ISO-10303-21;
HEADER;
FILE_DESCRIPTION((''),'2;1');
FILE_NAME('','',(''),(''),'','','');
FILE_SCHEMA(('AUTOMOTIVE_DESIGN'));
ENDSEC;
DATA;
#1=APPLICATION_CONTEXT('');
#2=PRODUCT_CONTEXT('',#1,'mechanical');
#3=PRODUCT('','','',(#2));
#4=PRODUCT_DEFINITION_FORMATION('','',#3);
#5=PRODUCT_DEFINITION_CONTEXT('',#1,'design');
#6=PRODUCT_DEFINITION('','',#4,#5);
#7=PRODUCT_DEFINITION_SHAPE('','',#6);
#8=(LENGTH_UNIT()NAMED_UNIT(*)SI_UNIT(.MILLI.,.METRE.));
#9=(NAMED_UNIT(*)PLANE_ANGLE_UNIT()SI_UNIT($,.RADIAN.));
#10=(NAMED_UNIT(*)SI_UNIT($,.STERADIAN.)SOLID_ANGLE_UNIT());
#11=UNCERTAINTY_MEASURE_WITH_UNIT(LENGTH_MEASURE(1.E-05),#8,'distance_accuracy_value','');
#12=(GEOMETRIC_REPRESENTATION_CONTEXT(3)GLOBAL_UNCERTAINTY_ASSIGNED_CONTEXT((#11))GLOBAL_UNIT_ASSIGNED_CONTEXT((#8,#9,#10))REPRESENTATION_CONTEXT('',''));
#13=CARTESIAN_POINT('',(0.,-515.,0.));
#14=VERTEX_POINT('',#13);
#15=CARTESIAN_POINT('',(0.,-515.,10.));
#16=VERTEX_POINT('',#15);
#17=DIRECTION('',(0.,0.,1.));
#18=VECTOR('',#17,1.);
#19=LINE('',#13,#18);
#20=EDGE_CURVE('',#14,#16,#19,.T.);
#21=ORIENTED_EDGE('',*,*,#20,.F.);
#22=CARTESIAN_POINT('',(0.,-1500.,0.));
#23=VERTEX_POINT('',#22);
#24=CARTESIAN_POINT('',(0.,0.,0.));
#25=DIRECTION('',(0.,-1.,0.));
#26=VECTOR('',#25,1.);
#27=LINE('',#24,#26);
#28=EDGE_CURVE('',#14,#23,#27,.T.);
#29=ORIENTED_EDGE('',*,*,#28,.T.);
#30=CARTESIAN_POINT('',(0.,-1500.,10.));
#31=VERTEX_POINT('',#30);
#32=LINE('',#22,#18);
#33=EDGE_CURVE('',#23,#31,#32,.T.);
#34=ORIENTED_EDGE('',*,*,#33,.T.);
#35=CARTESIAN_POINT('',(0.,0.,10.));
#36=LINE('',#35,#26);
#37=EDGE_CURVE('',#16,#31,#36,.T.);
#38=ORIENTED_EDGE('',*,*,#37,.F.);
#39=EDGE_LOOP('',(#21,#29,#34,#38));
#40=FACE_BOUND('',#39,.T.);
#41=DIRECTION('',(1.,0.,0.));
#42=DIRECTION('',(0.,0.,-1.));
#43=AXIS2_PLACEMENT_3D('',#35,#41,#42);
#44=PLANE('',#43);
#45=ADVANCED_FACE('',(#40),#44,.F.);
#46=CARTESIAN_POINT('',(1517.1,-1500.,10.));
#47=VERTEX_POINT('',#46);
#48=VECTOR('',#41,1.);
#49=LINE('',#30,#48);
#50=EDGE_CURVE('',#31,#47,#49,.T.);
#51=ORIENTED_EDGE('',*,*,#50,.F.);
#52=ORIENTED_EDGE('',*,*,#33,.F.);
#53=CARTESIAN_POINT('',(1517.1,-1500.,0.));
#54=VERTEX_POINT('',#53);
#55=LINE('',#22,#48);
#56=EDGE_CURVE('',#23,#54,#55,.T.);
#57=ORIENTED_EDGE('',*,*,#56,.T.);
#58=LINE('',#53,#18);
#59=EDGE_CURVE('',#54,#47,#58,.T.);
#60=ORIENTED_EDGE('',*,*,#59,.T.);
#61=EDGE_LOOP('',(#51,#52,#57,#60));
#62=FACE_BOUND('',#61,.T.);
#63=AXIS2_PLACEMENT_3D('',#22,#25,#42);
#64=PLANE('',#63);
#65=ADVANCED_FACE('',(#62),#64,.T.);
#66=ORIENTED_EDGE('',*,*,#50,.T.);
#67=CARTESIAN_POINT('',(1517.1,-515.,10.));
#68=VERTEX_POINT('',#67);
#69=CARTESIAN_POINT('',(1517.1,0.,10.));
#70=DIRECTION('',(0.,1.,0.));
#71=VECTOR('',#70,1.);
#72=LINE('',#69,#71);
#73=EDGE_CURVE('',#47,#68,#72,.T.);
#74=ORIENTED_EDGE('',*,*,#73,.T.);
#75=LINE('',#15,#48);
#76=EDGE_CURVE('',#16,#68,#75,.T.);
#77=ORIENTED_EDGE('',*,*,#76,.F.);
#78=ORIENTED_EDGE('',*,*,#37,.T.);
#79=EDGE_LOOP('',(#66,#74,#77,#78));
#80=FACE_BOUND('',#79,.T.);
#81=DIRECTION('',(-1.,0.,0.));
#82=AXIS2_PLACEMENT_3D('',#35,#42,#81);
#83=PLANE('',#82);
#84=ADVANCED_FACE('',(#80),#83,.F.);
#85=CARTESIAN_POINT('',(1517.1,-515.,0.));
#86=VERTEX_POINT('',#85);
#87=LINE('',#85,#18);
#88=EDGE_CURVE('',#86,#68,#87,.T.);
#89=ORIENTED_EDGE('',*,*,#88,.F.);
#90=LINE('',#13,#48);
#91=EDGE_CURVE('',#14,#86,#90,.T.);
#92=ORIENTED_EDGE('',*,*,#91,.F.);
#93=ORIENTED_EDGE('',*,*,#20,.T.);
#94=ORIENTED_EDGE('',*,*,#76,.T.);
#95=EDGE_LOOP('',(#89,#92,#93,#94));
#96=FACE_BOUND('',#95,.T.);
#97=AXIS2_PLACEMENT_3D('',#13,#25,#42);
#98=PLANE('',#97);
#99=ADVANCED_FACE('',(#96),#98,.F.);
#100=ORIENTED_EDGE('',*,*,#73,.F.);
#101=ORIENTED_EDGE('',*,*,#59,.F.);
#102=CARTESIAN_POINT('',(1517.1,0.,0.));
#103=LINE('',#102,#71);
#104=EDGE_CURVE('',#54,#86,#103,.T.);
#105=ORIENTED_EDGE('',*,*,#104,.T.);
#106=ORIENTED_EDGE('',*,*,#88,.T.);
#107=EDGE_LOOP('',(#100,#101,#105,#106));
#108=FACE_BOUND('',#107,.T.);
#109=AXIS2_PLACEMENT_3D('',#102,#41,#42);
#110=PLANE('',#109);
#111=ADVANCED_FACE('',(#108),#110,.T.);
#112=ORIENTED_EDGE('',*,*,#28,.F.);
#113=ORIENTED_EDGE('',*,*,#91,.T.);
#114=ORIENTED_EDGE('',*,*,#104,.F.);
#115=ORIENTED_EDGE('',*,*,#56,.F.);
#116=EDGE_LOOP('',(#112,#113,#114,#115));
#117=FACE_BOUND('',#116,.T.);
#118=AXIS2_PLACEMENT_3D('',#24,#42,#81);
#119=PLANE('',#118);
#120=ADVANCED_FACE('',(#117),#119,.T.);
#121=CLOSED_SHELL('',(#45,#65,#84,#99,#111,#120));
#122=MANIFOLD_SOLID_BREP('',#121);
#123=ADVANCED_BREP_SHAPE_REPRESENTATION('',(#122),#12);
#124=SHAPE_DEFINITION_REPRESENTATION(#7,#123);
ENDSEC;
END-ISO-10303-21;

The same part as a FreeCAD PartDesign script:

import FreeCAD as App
import Part
import Sketcher

V = App.Vector
Q = App.Units.Quantity

doc = App.newDocument("Part")
body = doc.addObject("PartDesign::Body", "Body")

# Sketch on XY plane
sketch1 = body.newObject("Sketcher::SketchObject", "Sketch")
sketch1.AttachmentSupport = (doc.getObject("XY_Plane"), [""])
sketch1.MapMode = "FlatFace"
sketch1.addGeometry(Part.LineSegment(V(0, 500, 0), V(0, 0, 0)), False)
sketch1.addGeometry(Part.LineSegment(V(0, 0, 0), V(1500, 0, 0)), False)
sketch1.addGeometry(Part.LineSegment(V(1500, 0, 0), V(1500, 500, 0)), False)
sketch1.addGeometry(Part.LineSegment(V(1500, 500, 0), V(0, 500, 0)), False)
sketch1.addConstraint(Sketcher.Constraint("Coincident", 0, 2, 1, 1))
sketch1.addConstraint(Sketcher.Constraint("Coincident", 1, 2, 2, 1))
sketch1.addConstraint(Sketcher.Constraint("Coincident", 2, 2, 3, 1))
sketch1.addConstraint(Sketcher.Constraint("Coincident", 3, 2, 0, 1))
sketch1.addConstraint(Sketcher.Constraint("Vertical", 0))
sketch1.addConstraint(Sketcher.Constraint("Horizontal", 1))
sketch1.addConstraint(Sketcher.Constraint("Vertical", 2))
sketch1.addConstraint(Sketcher.Constraint("Horizontal", 3))
sketch1.addConstraint(Sketcher.Constraint("Coincident", 0, 2, -1, 1))
sketch1.addConstraint(Sketcher.Constraint("DistanceX", 1, 1, 1, 2, Q("1500 mm")))
sketch1.addConstraint(Sketcher.Constraint("DistanceY", 0, 2, 0, 1, Q("500 mm")))
pad1 = body.newObject("PartDesign::Pad", "Pad")
pad1.Profile = sketch1
pad1.Length = 10

# Sketch on XY plane
sketch2 = body.newObject("Sketcher::SketchObject", "Sketch001")
sketch2.AttachmentSupport = (doc.getObject("XY_Plane"), [""])
sketch2.MapMode = "FlatFace"
sketch2.AttachmentOffset = App.Placement(V(0, 0, 10), App.Rotation())
sketch2.addGeometry(Part.LineSegment(V(0, 500, 0), V(0, -1500, 0)), False)
sketch2.addGeometry(Part.LineSegment(V(0, -1500, 0), V(3000, -1500, 0)), False)
sketch2.addGeometry(Part.LineSegment(V(3000, -1500, 0), V(3000, 500, 0)), False)
sketch2.addGeometry(Part.LineSegment(V(3000, 500, 0), V(0, 500, 0)), False)
sketch2.addConstraint(Sketcher.Constraint("Coincident", 0, 2, 1, 1))
sketch2.addConstraint(Sketcher.Constraint("Coincident", 1, 2, 2, 1))
sketch2.addConstraint(Sketcher.Constraint("Coincident", 2, 2, 3, 1))
sketch2.addConstraint(Sketcher.Constraint("Coincident", 3, 2, 0, 1))
sketch2.addConstraint(Sketcher.Constraint("Vertical", 0))
sketch2.addConstraint(Sketcher.Constraint("Horizontal", 1))
sketch2.addConstraint(Sketcher.Constraint("Vertical", 2))
sketch2.addConstraint(Sketcher.Constraint("Horizontal", 3))
sketch2.addConstraint(Sketcher.Constraint("PointOnObject", 0, 2, -2))
sketch2.addConstraint(Sketcher.Constraint("DistanceX", 1, 1, 1, 2, Q("3000 mm")))
sketch2.addConstraint(Sketcher.Constraint("DistanceY", 0, 2, 0, 1, Q("2000 mm")))
sketch2.addConstraint(Sketcher.Constraint("DistanceY", 0, 2, -1, 1, Q("1500 mm")))
pad2 = body.newObject("PartDesign::Pad", "Pad001")
pad2.Profile = sketch2
pad2.Length = 10
pad2.Reversed = True

# Sketch on XY plane
sketch3 = body.newObject("Sketcher::SketchObject", "Sketch002")
sketch3.AttachmentSupport = (doc.getObject("XY_Plane"), [""])
sketch3.MapMode = "FlatFace"
sketch3.AttachmentOffset = App.Placement(V(0, 0, 10), App.Rotation())
sketch3.addGeometry(Part.LineSegment(V(1517.1, -515, 0), V(1517.1, -1500, 0)), False)
sketch3.addGeometry(Part.LineSegment(V(1517.1, -1500, 0), V(3000, -1500, 0)), False)
sketch3.addGeometry(Part.LineSegment(V(3000, -1500, 0), V(3000, 500, 0)), False)
sketch3.addGeometry(Part.LineSegment(V(3000, 500, 0), V(0, 500, 0)), False)
sketch3.addGeometry(Part.LineSegment(V(0, 500, 0), V(0, -515, 0)), False)
sketch3.addGeometry(Part.LineSegment(V(0, -515, 0), V(1517.1, -515, 0)), False)
sketch3.addConstraint(Sketcher.Constraint("Coincident", 0, 2, 1, 1))
sketch3.addConstraint(Sketcher.Constraint("Coincident", 1, 2, 2, 1))
sketch3.addConstraint(Sketcher.Constraint("Coincident", 2, 2, 3, 1))
sketch3.addConstraint(Sketcher.Constraint("Coincident", 3, 2, 4, 1))
sketch3.addConstraint(Sketcher.Constraint("Coincident", 4, 2, 5, 1))
sketch3.addConstraint(Sketcher.Constraint("Coincident", 5, 2, 0, 1))
sketch3.addConstraint(Sketcher.Constraint("Vertical", 0))
sketch3.addConstraint(Sketcher.Constraint("Horizontal", 1))
sketch3.addConstraint(Sketcher.Constraint("Vertical", 2))
sketch3.addConstraint(Sketcher.Constraint("Horizontal", 3))
sketch3.addConstraint(Sketcher.Constraint("Vertical", 4))
sketch3.addConstraint(Sketcher.Constraint("Horizontal", 5))
sketch3.addConstraint(Sketcher.Constraint("PointOnObject", 3, 2, -2))
sketch3.addConstraint(Sketcher.Constraint("DistanceX", 3, 2, 3, 1, Q("3000 mm")))
sketch3.addConstraint(Sketcher.Constraint("DistanceY", 0, 2, 0, 1, Q("985 mm")))
sketch3.addConstraint(Sketcher.Constraint("DistanceY", 2, 1, 2, 2, Q("2000 mm")))
sketch3.addConstraint(Sketcher.Constraint("DistanceX", 1, 1, 1, 2, Q("1482.9 mm")))
sketch3.addConstraint(Sketcher.Constraint("DistanceY", 0, 2, -1, 1, Q("1500 mm")))
pocket1 = body.newObject("PartDesign::Pocket", "Pocket")
pocket1.Profile = sketch3
pocket1.Length = 10

doc.recompute()
